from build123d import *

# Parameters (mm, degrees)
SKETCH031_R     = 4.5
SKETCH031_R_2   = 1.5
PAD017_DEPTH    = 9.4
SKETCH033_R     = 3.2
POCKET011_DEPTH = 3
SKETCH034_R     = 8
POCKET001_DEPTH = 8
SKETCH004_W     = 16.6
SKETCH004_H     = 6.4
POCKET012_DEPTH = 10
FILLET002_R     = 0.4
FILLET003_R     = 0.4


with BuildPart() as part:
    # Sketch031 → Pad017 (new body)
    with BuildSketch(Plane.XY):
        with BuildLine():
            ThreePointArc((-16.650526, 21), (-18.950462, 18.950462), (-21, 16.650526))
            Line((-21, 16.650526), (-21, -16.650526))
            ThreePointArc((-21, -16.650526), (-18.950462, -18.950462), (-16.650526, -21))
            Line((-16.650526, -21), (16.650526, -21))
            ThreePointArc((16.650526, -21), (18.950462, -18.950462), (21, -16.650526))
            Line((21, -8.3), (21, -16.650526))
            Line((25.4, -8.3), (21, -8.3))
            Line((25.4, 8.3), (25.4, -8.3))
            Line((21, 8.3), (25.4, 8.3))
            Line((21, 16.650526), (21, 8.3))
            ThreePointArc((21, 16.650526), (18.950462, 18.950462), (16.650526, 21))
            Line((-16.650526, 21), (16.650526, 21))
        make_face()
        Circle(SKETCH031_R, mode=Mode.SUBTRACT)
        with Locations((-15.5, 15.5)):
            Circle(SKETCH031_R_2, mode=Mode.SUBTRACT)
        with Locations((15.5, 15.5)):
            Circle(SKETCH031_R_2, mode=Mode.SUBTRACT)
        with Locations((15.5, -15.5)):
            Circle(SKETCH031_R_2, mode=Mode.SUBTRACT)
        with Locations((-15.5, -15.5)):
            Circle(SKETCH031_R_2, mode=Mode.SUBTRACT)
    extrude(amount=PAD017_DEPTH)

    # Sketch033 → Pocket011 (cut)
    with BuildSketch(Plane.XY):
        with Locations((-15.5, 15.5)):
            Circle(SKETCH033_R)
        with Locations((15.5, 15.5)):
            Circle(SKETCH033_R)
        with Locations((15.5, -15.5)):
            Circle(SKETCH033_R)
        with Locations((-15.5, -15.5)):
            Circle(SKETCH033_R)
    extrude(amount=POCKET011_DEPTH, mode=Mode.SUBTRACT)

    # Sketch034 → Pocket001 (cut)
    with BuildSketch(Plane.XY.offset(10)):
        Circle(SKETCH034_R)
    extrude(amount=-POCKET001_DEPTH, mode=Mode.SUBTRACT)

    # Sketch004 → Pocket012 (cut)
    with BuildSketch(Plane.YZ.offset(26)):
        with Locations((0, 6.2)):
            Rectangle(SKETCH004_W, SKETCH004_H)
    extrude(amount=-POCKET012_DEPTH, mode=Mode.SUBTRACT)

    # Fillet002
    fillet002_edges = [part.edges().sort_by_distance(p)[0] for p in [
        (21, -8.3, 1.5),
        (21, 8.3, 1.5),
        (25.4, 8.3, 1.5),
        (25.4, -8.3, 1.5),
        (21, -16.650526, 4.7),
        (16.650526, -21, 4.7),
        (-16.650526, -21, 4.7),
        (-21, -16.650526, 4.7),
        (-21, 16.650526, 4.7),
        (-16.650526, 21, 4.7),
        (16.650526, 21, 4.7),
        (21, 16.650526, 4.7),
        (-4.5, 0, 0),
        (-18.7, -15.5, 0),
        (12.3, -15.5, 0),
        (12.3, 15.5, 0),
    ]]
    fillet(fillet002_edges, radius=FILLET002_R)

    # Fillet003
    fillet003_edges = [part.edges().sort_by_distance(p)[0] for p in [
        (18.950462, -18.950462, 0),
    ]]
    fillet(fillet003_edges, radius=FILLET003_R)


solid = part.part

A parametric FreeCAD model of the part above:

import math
import FreeCAD as App
import Part
import Sketcher
from FreeCAD import Vector


def edges_at(feature, points):
    """Names of the edges that pass closest to the given points."""
    edges = feature.Shape.Edges
    near = lambda p: min(range(len(edges)), key=lambda i: edges[i].distToShape(Part.Vertex(*p))[0])
    return sorted({f"Edge{near(p) + 1}" for p in points})

doc = App.newDocument("Part")
body = doc.addObject("PartDesign::Body", "Body")

sketch1 = body.newObject("Sketcher::SketchObject", "Sketch")
sketch1.AttachmentSupport = (doc.getObject("XY_Plane"), [""])
sketch1.MapMode = "FlatFace"
sketch1.addGeometry([
    Part.ArcOfCircle(Part.Circle(Vector(-0.000008, 0.000008, 0), Vector(0, 0, 1), 26.799989), math.radians(128.41027), math.radians(141.58973)),
    Part.LineSegment(Vector(-21, 16.650526, 0), Vector(-21, -16.650526, 0)),
    Part.ArcOfCircle(Part.Circle(Vector(-0.000008, -0.000008, 0), Vector(0, 0, 1), 26.799989), math.radians(-141.58973), math.radians(-128.41027)),
    Part.LineSegment(Vector(-16.650526, -21, 0), Vector(16.650526, -21, 0)),
    Part.ArcOfCircle(Part.Circle(Vector(0.000008, -0.000008, 0), Vector(0, 0, 1), 26.799989), math.radians(-51.58973), math.radians(-38.41027)),
    Part.LineSegment(Vector(21, -16.650526, 0), Vector(21, -8.3, 0)),
    Part.LineSegment(Vector(21, -8.3, 0), Vector(25.4, -8.3, 0)),
    Part.LineSegment(Vector(25.4, -8.3, 0), Vector(25.4, 8.3, 0)),
    Part.LineSegment(Vector(25.4, 8.3, 0), Vector(21, 8.3, 0)),
    Part.LineSegment(Vector(21, 8.3, 0), Vector(21, 16.650526, 0)),
    Part.ArcOfCircle(Part.Circle(Vector(0.000008, 0.000008, 0), Vector(0, 0, 1), 26.799989), math.radians(38.41027), math.radians(51.58973)),
    Part.LineSegment(Vector(16.650526, 21, 0), Vector(-16.650526, 21, 0)),
    Part.Circle(Vector(-15.5, -15.5, 0), Vector(0, 0, 1), 1.5),
    Part.Circle(Vector(15.5, -15.5, 0), Vector(0, 0, 1), 1.5),
    Part.Circle(Vector(-15.5, 15.5, 0), Vector(0, 0, 1), 1.5),
    Part.Circle(Vector(0, 0, 0), Vector(0, 0, 1), 4.5),
    Part.Circle(Vector(15.5, 15.5, 0), Vector(0, 0, 1), 1.5),
], False)
sketch1.addConstraint([
    Sketcher.Constraint("Coincident", 0, 2, 1, 1),
    Sketcher.Constraint("Coincident", 1, 2, 2, 1),
    Sketcher.Constraint("Coincident", 2, 2, 3, 1),
    Sketcher.Constraint("Coincident", 3, 2, 4, 1),
    Sketcher.Constraint("Coincident", 4, 2, 5, 1),
    Sketcher.Constraint("Coincident", 5, 2, 6, 1),
    Sketcher.Constraint("Coincident", 6, 2, 7, 1),
    Sketcher.Constraint("Coincident", 7, 2, 8, 1),
    Sketcher.Constraint("Coincident", 8, 2, 9, 1),
    Sketcher.Constraint("Coincident", 9, 2, 10, 1),
    Sketcher.Constraint("Coincident", 10, 2, 11, 1),
    Sketcher.Constraint("Coincident", 11, 2, 0, 1),
    Sketcher.Constraint("Vertical", 1),
    Sketcher.Constraint("Horizontal", 3),
    Sketcher.Constraint("Vertical", 5),
    Sketcher.Constraint("Horizontal", 6),
    Sketcher.Constraint("Vertical", 7),
    Sketcher.Constraint("Horizontal", 8),
    Sketcher.Constraint("Vertical", 9),
    Sketcher.Constraint("Horizontal", 11),
    Sketcher.Constraint("Coincident", 15, 3, -1, 1),
    Sketcher.Constraint("Equal", 0, 2),
    Sketcher.Constraint("Equal", 2, 4),
    Sketcher.Constraint("Equal", 4, 10),
    Sketcher.Constraint("Equal", 12, 13),
    Sketcher.Constraint("Equal", 13, 14),
    Sketcher.Constraint("Equal", 14, 16),
    Sketcher.Constraint("Symmetric", 0, 3, 4, 3, -1, 1),
    Sketcher.Constraint("Symmetric", 2, 3, 10, 3, -1, 1),
    Sketcher.Constraint("Symmetric", 13, 3, 14, 3, -1, 1),
    Sketcher.Constraint("Symmetric", 12, 3, 16, 3, -1, 1),
    Sketcher.Constraint("Symmetric", 2, 3, 4, 3, -2),
    Sketcher.Constraint("Symmetric", 12, 3, 13, 3, -2),
    Sketcher.Constraint("Symmetric", 5, 2, 8, 2, -1),
    Sketcher.Constraint("Horizontal", 1, 2, 4, 2),
    Sketcher.Constraint("Vertical", 3, 2, 10, 2),
    Sketcher.Constraint("Equal", 11, 1),
    Sketcher.Constraint("Diameter", 12, 3.0),
    Sketcher.Constraint("Diameter", 15, 9.0),
    Sketcher.Constraint("DistanceX", 6, 1, 6, 2, 4.4),
    Sketcher.Constraint("DistanceY", 7, 1, 7, 2, 16.6),
    Sketcher.Constraint("DistanceX", 0, 2, -1, 1, 21.0),
    Sketcher.Constraint("DistanceY", 2, 2, -1, 1, 21.0),
    Sketcher.Constraint("DistanceX", 12, 3, 13, 3, 31.0),
    Sketcher.Constraint("DistanceY", 12, 3, 14, 3, 31.0),
    Sketcher.Constraint("Radius", 0, 26.799989),
    Sketcher.Constraint("DistanceX", 3, 1, 3, 2, 33.301052),
])
pad1 = body.newObject("PartDesign::Pad", "Pad")
pad1.Profile = sketch1
pad1.Length = 9.4

sketch2 = body.newObject("Sketcher::SketchObject", "Sketch001")
sketch2.AttachmentSupport = (doc.getObject("XY_Plane"), [""])
sketch2.MapMode = "FlatFace"
sketch2.addGeometry([
    Part.Circle(Vector(-15.5, 15.5, 0), Vector(0, 0, 1), 3.2),
    Part.Circle(Vector(15.5, 15.5, 0), Vector(0, 0, 1), 3.2),
    Part.Circle(Vector(15.5, -15.5, 0), Vector(0, 0, 1), 3.2),
    Part.Circle(Vector(-15.5, -15.5, 0), Vector(0, 0, 1), 3.2),
], False)
sketch2.addConstraint([
    Sketcher.Constraint("Equal", 0, 1),
    Sketcher.Constraint("Equal", 1, 2),
    Sketcher.Constraint("Equal", 2, 3),
    Sketcher.Constraint("Symmetric", 0, 3, 2, 3, -1, 1),
    Sketcher.Constraint("Symmetric", 1, 3, 3, 3, -1, 1),
    Sketcher.Constraint("Symmetric", 0, 3, 1, 3, -2),
    Sketcher.Constraint("Diameter", 0, 6.4),
    Sketcher.Constraint("DistanceX", 0, 3, 1, 3, 31.0),
    Sketcher.Constraint("DistanceY", 2, 3, 1, 3, 31.0),
])
pocket1 = body.newObject("PartDesign::Pocket", "Pocket")
pocket1.Profile = sketch2
pocket1.Length = 3
pocket1.Reversed = True

sketch3 = body.newObject("Sketcher::SketchObject", "Sketch002")
sketch3.AttachmentSupport = (doc.getObject("XY_Plane"), [""])
sketch3.MapMode = "FlatFace"
sketch3.AttachmentOffset = App.Placement(Vector(0, 0, 10), App.Rotation())
sketch3.addGeometry(Part.Circle(Vector(0, 0, 0), Vector(0, 0, 1), 8), False)
sketch3.addConstraint([
    Sketcher.Constraint("Coincident", 0, 3, -1, 1),
    Sketcher.Constraint("Diameter", 0, 16.0),
])
pocket2 = body.newObject("PartDesign::Pocket", "Pocket001")
pocket2.Profile = sketch3
pocket2.Length = 8

sketch4 = body.newObject("Sketcher::SketchObject", "Sketch003")
sketch4.AttachmentSupport = (doc.getObject("YZ_Plane"), [""])
sketch4.MapMode = "FlatFace"
sketch4.AttachmentOffset = App.Placement(Vector(0, 0, 26), App.Rotation())
sketch4.addGeometry([
    Part.LineSegment(Vector(-8, 9, 0), Vector(-8, 3, 0)),
    Part.LineSegment(Vector(-8, 3, 0), Vector(8, 3, 0)),
    Part.LineSegment(Vector(8, 3, 0), Vector(8, 9, 0)),
    Part.LineSegment(Vector(8, 9, 0), Vector(-8, 9, 0)),
], False)
sketch4.addConstraint([
    Sketcher.Constraint("Coincident", 0, 2, 1, 1),
    Sketcher.Constraint("Coincident", 1, 2, 2, 1),
    Sketcher.Constraint("Coincident", 2, 2, 3, 1),
    Sketcher.Constraint("Coincident", 3, 2, 0, 1),
    Sketcher.Constraint("Vertical", 0),
    Sketcher.Constraint("Horizontal", 1),
    Sketcher.Constraint("Vertical", 2),
    Sketcher.Constraint("Horizontal", 3),
    Sketcher.Constraint("DistanceX", 1, 1, 1, 2, 16.6),
    Sketcher.Constraint("DistanceY", 0, 2, 0, 1, 6.4),
    Sketcher.Constraint("DistanceY", -1, 1, 0, 2, 3.0),
    Sketcher.Constraint("DistanceX", 0, 2, -1, 1, 8.3),
])
pocket3 = body.newObject("PartDesign::Pocket", "Pocket002")
pocket3.Profile = sketch4
pocket3.Length = 10
doc.recompute()

fillet = body.newObject("PartDesign::Fillet", "Fillet")
fillet.Base = (pocket3, edges_at(pocket3, [
    (21, -8.3, 1.5),
    (21, 8.3, 1.5),
    (25.4, 8.3, 1.5),
    (25.4, -8.3, 1.5),
    (21, -16.651, 4.7),
    (16.651, -21, 4.7),
    (-16.651, -21, 4.7),
    (-21, -16.651, 4.7),
    (-21, 16.651, 4.7),
    (-16.651, 21, 4.7),
    (16.651, 21, 4.7),
    (21, 16.651, 4.7),
    (-4.5, 0, 0),
    (-18.7, -15.5, 0),
    (12.3, -15.5, 0),
    (12.3, 15.5, 0),
]))
fillet.Radius = 0.4
doc.recompute()

fillet2 = body.newObject("PartDesign::Fillet", "Fillet001")
fillet2.Base = (fillet, edges_at(fillet, [(18.95, -18.95, 0)]))
fillet2.Radius = 0.4

doc.recompute()
